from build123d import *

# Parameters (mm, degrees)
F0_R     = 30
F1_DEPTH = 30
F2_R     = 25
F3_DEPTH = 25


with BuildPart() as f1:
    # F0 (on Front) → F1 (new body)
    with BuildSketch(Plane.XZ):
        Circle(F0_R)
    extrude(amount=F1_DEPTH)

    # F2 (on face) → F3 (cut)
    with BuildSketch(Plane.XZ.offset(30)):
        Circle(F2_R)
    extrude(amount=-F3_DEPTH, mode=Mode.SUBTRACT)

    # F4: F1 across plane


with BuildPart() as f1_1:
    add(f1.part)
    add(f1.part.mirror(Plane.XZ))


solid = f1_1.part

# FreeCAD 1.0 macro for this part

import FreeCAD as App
import Part
import Sketcher

V = App.Vector
Q = App.Units.Quantity

doc = App.newDocument("Part")
body = doc.addObject("PartDesign::Body", "Body")

sketch1 = doc.addObject("Sketcher::SketchObject", "Sketch")
body.addObject(sketch1)
sketch1.AttachmentSupport = (doc.XZ_Plane, [""])
sketch1.MapMode = "FlatFace"
sketch1.addGeometry(Part.Circle(V(0, 0, 0), V(0, 0, 1), 30), False)
sketch1.addConstraint([
    Sketcher.Constraint("Coincident", 0, 3, -1, 1),
    Sketcher.Constraint("Diameter", 0, Q("60 mm")),
])
pad1 = doc.addObject("PartDesign::Pad", "Pad")
body.addObject(pad1)
pad1.Profile = sketch1
pad1.Length = 30

sketch2 = doc.addObject("Sketcher::SketchObject", "Sketch001")
body.addObject(sketch2)
sketch2.AttachmentSupport = (doc.XZ_Plane, [""])
sketch2.MapMode = "FlatFace"
sketch2.AttachmentOffset = App.Placement(V(0, 0, 30), App.Rotation())
sketch2.addGeometry(Part.Circle(V(0, 0, 0), V(0, 0, 1), 25), False)
sketch2.addConstraint([
    Sketcher.Constraint("Coincident", 0, 3, -1, 1),
    Sketcher.Constraint("Diameter", 0, Q("50 mm")),
])
pocket1 = doc.addObject("PartDesign::Pocket", "Pocket")
body.addObject(pocket1)
pocket1.Profile = sketch2
pocket1.Length = 25
body2 = doc.addObject("PartDesign::Body", "Body001")
doc.recompute()

body2.BaseFeature = body
doc.recompute()

mirroring = doc.addObject("Part::Mirroring", "Mirroring")
mirroring.Source = body
mirroring.Base = V(0, 0, 0)
mirroring.Normal = V(0, -1, 0)
body3 = doc.addObject("PartDesign::Body", "Body002")
body3.BaseFeature = mirroring
boolean = doc.addObject("PartDesign::Boolean", "Boolean")
body2.addObject(boolean)
boolean.Type = "Fuse"
boolean.addObjects([body3])
doc.recompute()
mirroring.Visibility = False

doc.recompute()
